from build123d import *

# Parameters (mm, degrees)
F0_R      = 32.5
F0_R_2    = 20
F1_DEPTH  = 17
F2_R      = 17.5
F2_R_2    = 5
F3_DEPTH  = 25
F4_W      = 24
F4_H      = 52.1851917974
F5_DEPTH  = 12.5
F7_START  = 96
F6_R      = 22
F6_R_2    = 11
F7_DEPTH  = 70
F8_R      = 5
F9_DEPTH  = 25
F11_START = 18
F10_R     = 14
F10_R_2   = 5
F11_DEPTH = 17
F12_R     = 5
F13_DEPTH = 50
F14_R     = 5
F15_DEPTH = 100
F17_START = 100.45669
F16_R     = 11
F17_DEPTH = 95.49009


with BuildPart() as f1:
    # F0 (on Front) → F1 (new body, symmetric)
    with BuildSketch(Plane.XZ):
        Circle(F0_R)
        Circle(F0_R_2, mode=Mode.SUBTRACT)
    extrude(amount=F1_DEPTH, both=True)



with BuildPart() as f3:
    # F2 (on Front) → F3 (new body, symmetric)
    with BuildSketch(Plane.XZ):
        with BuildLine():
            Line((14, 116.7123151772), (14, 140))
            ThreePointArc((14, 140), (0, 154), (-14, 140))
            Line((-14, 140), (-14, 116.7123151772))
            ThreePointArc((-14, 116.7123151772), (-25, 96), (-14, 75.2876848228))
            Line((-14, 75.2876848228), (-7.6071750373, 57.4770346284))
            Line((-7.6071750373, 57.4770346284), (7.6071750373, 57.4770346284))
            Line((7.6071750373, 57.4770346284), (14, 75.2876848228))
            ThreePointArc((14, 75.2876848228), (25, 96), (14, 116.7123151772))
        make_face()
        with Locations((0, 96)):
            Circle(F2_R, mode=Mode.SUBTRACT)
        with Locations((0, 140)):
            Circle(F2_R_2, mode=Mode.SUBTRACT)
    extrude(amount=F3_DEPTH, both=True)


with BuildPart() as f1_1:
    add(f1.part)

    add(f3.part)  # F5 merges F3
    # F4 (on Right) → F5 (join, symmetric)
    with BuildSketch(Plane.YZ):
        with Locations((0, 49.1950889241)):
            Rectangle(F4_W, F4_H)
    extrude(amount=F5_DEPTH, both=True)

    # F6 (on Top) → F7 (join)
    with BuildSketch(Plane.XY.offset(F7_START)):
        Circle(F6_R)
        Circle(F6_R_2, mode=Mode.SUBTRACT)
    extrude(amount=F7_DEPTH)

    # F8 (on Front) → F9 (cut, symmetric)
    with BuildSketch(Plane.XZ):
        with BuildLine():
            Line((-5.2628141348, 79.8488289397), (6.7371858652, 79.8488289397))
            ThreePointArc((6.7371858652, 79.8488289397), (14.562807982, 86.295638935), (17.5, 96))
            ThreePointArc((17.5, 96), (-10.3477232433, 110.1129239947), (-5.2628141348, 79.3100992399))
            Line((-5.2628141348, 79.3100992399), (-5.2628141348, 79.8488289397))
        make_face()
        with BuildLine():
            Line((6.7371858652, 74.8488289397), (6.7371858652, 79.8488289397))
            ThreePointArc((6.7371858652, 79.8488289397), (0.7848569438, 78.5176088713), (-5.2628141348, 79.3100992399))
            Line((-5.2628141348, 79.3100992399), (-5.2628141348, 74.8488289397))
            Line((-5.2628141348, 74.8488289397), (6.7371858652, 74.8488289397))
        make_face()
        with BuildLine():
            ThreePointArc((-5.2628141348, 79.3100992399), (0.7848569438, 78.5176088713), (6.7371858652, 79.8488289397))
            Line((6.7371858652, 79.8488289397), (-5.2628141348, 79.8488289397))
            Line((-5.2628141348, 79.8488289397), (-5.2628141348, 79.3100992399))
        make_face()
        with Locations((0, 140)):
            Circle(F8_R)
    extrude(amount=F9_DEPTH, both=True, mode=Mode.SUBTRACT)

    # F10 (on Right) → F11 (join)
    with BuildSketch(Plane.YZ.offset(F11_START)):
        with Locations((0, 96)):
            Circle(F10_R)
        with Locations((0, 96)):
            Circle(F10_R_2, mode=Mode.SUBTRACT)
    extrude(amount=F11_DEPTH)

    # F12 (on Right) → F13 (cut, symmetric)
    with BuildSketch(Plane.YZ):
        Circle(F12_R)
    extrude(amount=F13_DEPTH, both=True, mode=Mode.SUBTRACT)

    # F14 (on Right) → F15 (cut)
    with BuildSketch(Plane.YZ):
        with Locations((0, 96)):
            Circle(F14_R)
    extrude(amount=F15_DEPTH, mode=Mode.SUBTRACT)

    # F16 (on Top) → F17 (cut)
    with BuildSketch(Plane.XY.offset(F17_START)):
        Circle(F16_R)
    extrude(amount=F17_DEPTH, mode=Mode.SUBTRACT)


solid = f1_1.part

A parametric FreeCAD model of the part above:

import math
import FreeCAD as App
import Part
import Sketcher
from FreeCAD import Vector


def add_polygon(sketch, points):
    """Adds a closed chain of lines whose ends are joined by coincident constraints."""
    first, n = sketch.GeometryCount, len(points)
    for a, b in zip(points, points[1:] + points[:1]):
        sketch.addGeometry(Part.LineSegment(App.Vector(*a, 0), App.Vector(*b, 0)), False)
    for i in range(n):
        sketch.addConstraint(Sketcher.Constraint("Coincident", first + i, 2, first + (i + 1) % n, 1))

doc = App.newDocument("Part")
body = doc.addObject("PartDesign::Body", "Body")

# Sketch on XZ plane
sketch1 = body.newObject("Sketcher::SketchObject", "Sketch")
sketch1.AttachmentSupport = (doc.getObject("XZ_Plane"), [""])
sketch1.MapMode = "FlatFace"
sketch1.addGeometry(Part.Circle(Vector(0, 0, 0), Vector(0, 0, 1), 32), False)
sketch1.addGeometry(Part.Circle(Vector(0, 0, 0), Vector(0, 0, 1), 20), False)
sketch1.addConstraint(Sketcher.Constraint("Coincident", 0, 3, -1, 1))
sketch1.addConstraint(Sketcher.Constraint("Coincident", 1, 3, -1, 1))
sketch1.addConstraint(Sketcher.Constraint("Diameter", 0, 65.0))
sketch1.addConstraint(Sketcher.Constraint("Diameter", 1, 40.0))
pad1 = body.newObject("PartDesign::Pad", "Pad")
pad1.Profile = sketch1
pad1.Length = 34
pad1.Midplane = True
body2 = doc.addObject("PartDesign::Body", "Body001")

# Sketch on XZ plane
sketch2 = body2.newObject("Sketcher::SketchObject", "Sketch001")
sketch2.AttachmentSupport = (doc.getObject("XZ_Plane001"), [""])
sketch2.MapMode = "FlatFace"
sketch2.addGeometry(Part.LineSegment(Vector(14, 117, 0), Vector(14, 140, 0)), False)
sketch2.addGeometry(Part.ArcOfCircle(Part.Circle(Vector(0, 140, 0), Vector(0, 0, 1), 14), math.radians(0), math.radians(180)), False)
sketch2.addGeometry(Part.LineSegment(Vector(-14, 140, 0), Vector(-14, 117, 0)), False)
sketch2.addGeometry(Part.ArcOfCircle(Part.Circle(Vector(0, 96, 0), Vector(0, 0, 1), 25), math.radians(124), math.radians(236)), False)
sketch2.addGeometry(Part.LineSegment(Vector(-14, 75, 0), Vector(-8, 57, 0)), False)
sketch2.addGeometry(Part.LineSegment(Vector(-8, 57, 0), Vector(8, 57, 0)), False)
sketch2.addGeometry(Part.LineSegment(Vector(8, 57, 0), Vector(14, 75, 0)), False)
sketch2.addGeometry(Part.ArcOfCircle(Part.Circle(Vector(0, 96, 0), Vector(0, 0, 1), 25), math.radians(-56), math.radians(56)), False)
sketch2.addGeometry(Part.Circle(Vector(0, 96, 0), Vector(0, 0, 1), 18), False)
sketch2.addGeometry(Part.Circle(Vector(0, 140, 0), Vector(0, 0, 1), 5), False)
sketch2.addConstraint(Sketcher.Constraint("Tangent", 0, 2, 1, 1))
sketch2.addConstraint(Sketcher.Constraint("Tangent", 1, 2, 2, 1))
sketch2.addConstraint(Sketcher.Constraint("Coincident", 2, 2, 3, 1))
sketch2.addConstraint(Sketcher.Constraint("Coincident", 3, 2, 4, 1))
sketch2.addConstraint(Sketcher.Constraint("Coincident", 4, 2, 5, 1))
sketch2.addConstraint(Sketcher.Constraint("Coincident", 5, 2, 6, 1))
sketch2.addConstraint(Sketcher.Constraint("Coincident", 6, 2, 7, 1))
sketch2.addConstraint(Sketcher.Constraint("Coincident", 7, 2, 0, 1))
sketch2.addConstraint(Sketcher.Constraint("Vertical", 0))
sketch2.addConstraint(Sketcher.Constraint("Vertical", 2))
sketch2.addConstraint(Sketcher.Constraint("Horizontal", 5))
sketch2.addConstraint(Sketcher.Constraint("Coincident", 7, 3, 3, 3))
sketch2.addConstraint(Sketcher.Constraint("Coincident", 8, 3, 3, 3))
sketch2.addConstraint(Sketcher.Constraint("Coincident", 9, 3, 1, 3))
sketch2.addConstraint(Sketcher.Constraint("Equal", 3, 7))
sketch2.addConstraint(Sketcher.Constraint("Symmetric", 3, 2, 6, 2, -2))
sketch2.addConstraint(Sketcher.Constraint("PointOnObject", 1, 3, -2))
sketch2.addConstraint(Sketcher.Constraint("Vertical", 2, 2, 3, 2))
sketch2.addConstraint(Sketcher.Constraint("Equal", 4, 6))
sketch2.addConstraint(Sketcher.Constraint("Diameter", 8, 35.0))
sketch2.addConstraint(Sketcher.Constraint("Diameter", 9, 10.0))
sketch2.addConstraint(Sketcher.Constraint("Radius", 1, 14.0))
sketch2.addConstraint(Sketcher.Constraint("Radius", 3, 25.0))
sketch2.addConstraint(Sketcher.Constraint("DistanceY", -1, 1, 1, 3, 140.0))
sketch2.addConstraint(Sketcher.Constraint("DistanceY", -1, 1, 3, 3, 96.0))
sketch2.addConstraint(Sketcher.Constraint("Distance", 4, 18.923199))
sketch2.addConstraint(Sketcher.Constraint("DistanceX", 5, 1, 5, 2, 15.21435))
pad2 = body2.newObject("PartDesign::Pad", "Pad001")
pad2.Profile = sketch2
pad2.Length = 50
pad2.Midplane = True
body.AllowCompound = True
doc.recompute()

boolean = body.newObject("PartDesign::Boolean", "Boolean")
boolean.Type = "Fuse"
boolean.addObjects([body2])

# Sketch on YZ plane
sketch3 = body.newObject("Sketcher::SketchObject", "Sketch002")
sketch3.AttachmentSupport = (doc.getObject("YZ_Plane"), [""])
sketch3.MapMode = "FlatFace"
add_polygon(sketch3, [(-12, 75), (-12, 23), (12, 23), (12, 75)])  # lines 0-3
sketch3.addConstraint(Sketcher.Constraint("Vertical", 0))
sketch3.addConstraint(Sketcher.Constraint("Horizontal", 1))
sketch3.addConstraint(Sketcher.Constraint("Vertical", 2))
sketch3.addConstraint(Sketcher.Constraint("Horizontal", 3))
sketch3.addConstraint(Sketcher.Constraint("DistanceX", 1, 1, 1, 2, 24.0))
sketch3.addConstraint(Sketcher.Constraint("DistanceX", 0, 2, -1, 1, 12.0))
sketch3.addConstraint(Sketcher.Constraint("DistanceY", 0, 2, 0, 1, 52.185192))
sketch3.addConstraint(Sketcher.Constraint("DistanceY", -1, 1, 0, 2, 23.102493))
pad3 = body.newObject("PartDesign::Pad", "Pad002")
pad3.Profile = sketch3
pad3.Length = 25
pad3.Midplane = True

# Sketch on XY plane
sketch4 = body.newObject("Sketcher::SketchObject", "Sketch003")
sketch4.AttachmentSupport = (doc.getObject("XY_Plane"), [""])
sketch4.MapMode = "FlatFace"
sketch4.AttachmentOffset = App.Placement(Vector(0, 0, 96), App.Rotation())
sketch4.addGeometry(Part.Circle(Vector(0, 0, 0), Vector(0, 0, 1), 22), False)
sketch4.addGeometry(Part.Circle(Vector(0, 0, 0), Vector(0, 0, 1), 11), False)
sketch4.addConstraint(Sketcher.Constraint("Coincident", 0, 3, -1, 1))
sketch4.addConstraint(Sketcher.Constraint("Coincident", 1, 3, -1, 1))
sketch4.addConstraint(Sketcher.Constraint("Diameter", 0, 44.0))
sketch4.addConstraint(Sketcher.Constraint("Diameter", 1, 22.0))
pad4 = body.newObject("PartDesign::Pad", "Pad003")
pad4.Profile = sketch4
pad4.Length = 70

# Sketch on XZ plane
sketch5 = body.newObject("Sketcher::SketchObject", "Sketch004")
sketch5.AttachmentSupport = (doc.getObject("XZ_Plane"), [""])
sketch5.MapMode = "FlatFace"
sketch5.addGeometry(Part.ArcOfCircle(Part.Circle(Vector(0, 96, 0), Vector(0, 0, 1), 17.5), math.radians(-67), math.radians(0)), False)
sketch5.addGeometry(Part.ArcOfCircle(Part.Circle(Vector(0, 96, 0), Vector(0, 0, 1), 17.5), math.radians(0), math.radians(252)), False)
sketch5.addGeometry(Part.LineSegment(Vector(-5.3, 79.3, 0), Vector(-5.3, 74.8, 0)), False)
sketch5.addGeometry(Part.LineSegment(Vector(-5.3, 74.8, 0), Vector(6.7, 74.8, 0)), False)
sketch5.addGeometry(Part.LineSegment(Vector(6.7, 74.8, 0), Vector(6.7, 79.8, 0)), False)
sketch5.addGeometry(Part.Circle(Vector(0, 140, 0), Vector(0, 0, 1), 5), False)
sketch5.addConstraint(Sketcher.Constraint("Tangent", 0, 2, 1, 1))
sketch5.addConstraint(Sketcher.Constraint("Coincident", 1, 2, 2, 1))
sketch5.addConstraint(Sketcher.Constraint("Coincident", 2, 2, 3, 1))
sketch5.addConstraint(Sketcher.Constraint("Coincident", 3, 2, 4, 1))
sketch5.addConstraint(Sketcher.Constraint("Coincident", 4, 2, 0, 1))
sketch5.addConstraint(Sketcher.Constraint("Vertical", 2))
sketch5.addConstraint(Sketcher.Constraint("Horizontal", 3))
sketch5.addConstraint(Sketcher.Constraint("Vertical", 4))
sketch5.addConstraint(Sketcher.Constraint("Equal", 0, 1))
sketch5.addConstraint(Sketcher.Constraint("PointOnObject", 0, 3, -2))
sketch5.addConstraint(Sketcher.Constraint("PointOnObject", 5, 3, -2))
sketch5.addConstraint(Sketcher.Constraint("Horizontal", 1, 3, 0, 2))
sketch5.addConstraint(Sketcher.Constraint("Diameter", 5, 10.0))
sketch5.addConstraint(Sketcher.Constraint("Radius", 0, 17.5))
sketch5.addConstraint(Sketcher.Constraint("DistanceX", 3, 1, 3, 2, 12.0))
sketch5.addConstraint(Sketcher.Constraint("DistanceY", 4, 1, 4, 2, 5.0))
sketch5.addConstraint(Sketcher.Constraint("DistanceY", -1, 1, 0, 3, 96.0))
sketch5.addConstraint(Sketcher.Constraint("DistanceY", -1, 1, 5, 3, 140.0))
sketch5.addConstraint(Sketcher.Constraint("DistanceY", 2, 2, 2, 1, 4.46127))
pocket1 = body.newObject("PartDesign::Pocket", "Pocket")
pocket1.Profile = sketch5
pocket1.Length = 50
pocket1.Midplane = True

# Sketch on YZ plane
sketch6 = body.newObject("Sketcher::SketchObject", "Sketch005")
sketch6.AttachmentSupport = (doc.getObject("YZ_Plane"), [""])
sketch6.MapMode = "FlatFace"
sketch6.AttachmentOffset = App.Placement(Vector(0, 0, 18), App.Rotation())
sketch6.addGeometry(Part.Circle(Vector(0, 96, 0), Vector(0, 0, 1), 14), False)
sketch6.addGeometry(Part.Circle(Vector(0, 96, 0), Vector(0, 0, 1), 5), False)
sketch6.addConstraint(Sketcher.Constraint("Coincident", 1, 3, 0, 3))
sketch6.addConstraint(Sketcher.Constraint("PointOnObject", 0, 3, -2))
sketch6.addConstraint(Sketcher.Constraint("Diameter", 0, 28.0))
sketch6.addConstraint(Sketcher.Constraint("Diameter", 1, 10.0))
sketch6.addConstraint(Sketcher.Constraint("DistanceY", -1, 1, 0, 3, 96.0))
pad5 = body.newObject("PartDesign::Pad", "Pad004")
pad5.Profile = sketch6
pad5.Length = 17

# Sketch on YZ plane
sketch7 = body.newObject("Sketcher::SketchObject", "Sketch006")
sketch7.AttachmentSupport = (doc.getObject("YZ_Plane"), [""])
sketch7.MapMode = "FlatFace"
sketch7.addGeometry(Part.Circle(Vector(0, 0, 0), Vector(0, 0, 1), 5), False)
sketch7.addConstraint(Sketcher.Constraint("Coincident", 0, 3, -1, 1))
sketch7.addConstraint(Sketcher.Constraint("Diameter", 0, 10.0))
pocket2 = body.newObject("PartDesign::Pocket", "Pocket001")
pocket2.Profile = sketch7
pocket2.Length = 100
pocket2.Midplane = True

# Sketch on YZ plane
sketch8 = body.newObject("Sketcher::SketchObject", "Sketch007")
sketch8.AttachmentSupport = (doc.getObject("YZ_Plane"), [""])
sketch8.MapMode = "FlatFace"
sketch8.addGeometry(Part.Circle(Vector(0, 96, 0), Vector(0, 0, 1), 5), False)
sketch8.addConstraint(Sketcher.Constraint("PointOnObject", 0, 3, -2))
sketch8.addConstraint(Sketcher.Constraint("Diameter", 0, 10.0))
sketch8.addConstraint(Sketcher.Constraint("DistanceY", -1, 1, 0, 3, 96.0))
pocket3 = body.newObject("PartDesign::Pocket", "Pocket002")
pocket3.Profile = sketch8
pocket3.Length = 100
pocket3.Reversed = True

# Sketch on XY plane
sketch9 = body.newObject("Sketcher::SketchObject", "Sketch008")
sketch9.AttachmentSupport = (doc.getObject("XY_Plane"), [""])
sketch9.MapMode = "FlatFace"
sketch9.AttachmentOffset = App.Placement(Vector(0, 0, 100.45669), App.Rotation())
sketch9.addGeometry(Part.Circle(Vector(0, 0, 0), Vector(0, 0, 1), 11), False)
sketch9.addConstraint(Sketcher.Constraint("Coincident", 0, 3, -1, 1))
sketch9.addConstraint(Sketcher.Constraint("Diameter", 0, 22.0))
pocket4 = body.newObject("PartDesign::Pocket", "Pocket003")
pocket4.Profile = sketch9
pocket4.Length = 95.49009
pocket4.Reversed = True

doc.recompute()
